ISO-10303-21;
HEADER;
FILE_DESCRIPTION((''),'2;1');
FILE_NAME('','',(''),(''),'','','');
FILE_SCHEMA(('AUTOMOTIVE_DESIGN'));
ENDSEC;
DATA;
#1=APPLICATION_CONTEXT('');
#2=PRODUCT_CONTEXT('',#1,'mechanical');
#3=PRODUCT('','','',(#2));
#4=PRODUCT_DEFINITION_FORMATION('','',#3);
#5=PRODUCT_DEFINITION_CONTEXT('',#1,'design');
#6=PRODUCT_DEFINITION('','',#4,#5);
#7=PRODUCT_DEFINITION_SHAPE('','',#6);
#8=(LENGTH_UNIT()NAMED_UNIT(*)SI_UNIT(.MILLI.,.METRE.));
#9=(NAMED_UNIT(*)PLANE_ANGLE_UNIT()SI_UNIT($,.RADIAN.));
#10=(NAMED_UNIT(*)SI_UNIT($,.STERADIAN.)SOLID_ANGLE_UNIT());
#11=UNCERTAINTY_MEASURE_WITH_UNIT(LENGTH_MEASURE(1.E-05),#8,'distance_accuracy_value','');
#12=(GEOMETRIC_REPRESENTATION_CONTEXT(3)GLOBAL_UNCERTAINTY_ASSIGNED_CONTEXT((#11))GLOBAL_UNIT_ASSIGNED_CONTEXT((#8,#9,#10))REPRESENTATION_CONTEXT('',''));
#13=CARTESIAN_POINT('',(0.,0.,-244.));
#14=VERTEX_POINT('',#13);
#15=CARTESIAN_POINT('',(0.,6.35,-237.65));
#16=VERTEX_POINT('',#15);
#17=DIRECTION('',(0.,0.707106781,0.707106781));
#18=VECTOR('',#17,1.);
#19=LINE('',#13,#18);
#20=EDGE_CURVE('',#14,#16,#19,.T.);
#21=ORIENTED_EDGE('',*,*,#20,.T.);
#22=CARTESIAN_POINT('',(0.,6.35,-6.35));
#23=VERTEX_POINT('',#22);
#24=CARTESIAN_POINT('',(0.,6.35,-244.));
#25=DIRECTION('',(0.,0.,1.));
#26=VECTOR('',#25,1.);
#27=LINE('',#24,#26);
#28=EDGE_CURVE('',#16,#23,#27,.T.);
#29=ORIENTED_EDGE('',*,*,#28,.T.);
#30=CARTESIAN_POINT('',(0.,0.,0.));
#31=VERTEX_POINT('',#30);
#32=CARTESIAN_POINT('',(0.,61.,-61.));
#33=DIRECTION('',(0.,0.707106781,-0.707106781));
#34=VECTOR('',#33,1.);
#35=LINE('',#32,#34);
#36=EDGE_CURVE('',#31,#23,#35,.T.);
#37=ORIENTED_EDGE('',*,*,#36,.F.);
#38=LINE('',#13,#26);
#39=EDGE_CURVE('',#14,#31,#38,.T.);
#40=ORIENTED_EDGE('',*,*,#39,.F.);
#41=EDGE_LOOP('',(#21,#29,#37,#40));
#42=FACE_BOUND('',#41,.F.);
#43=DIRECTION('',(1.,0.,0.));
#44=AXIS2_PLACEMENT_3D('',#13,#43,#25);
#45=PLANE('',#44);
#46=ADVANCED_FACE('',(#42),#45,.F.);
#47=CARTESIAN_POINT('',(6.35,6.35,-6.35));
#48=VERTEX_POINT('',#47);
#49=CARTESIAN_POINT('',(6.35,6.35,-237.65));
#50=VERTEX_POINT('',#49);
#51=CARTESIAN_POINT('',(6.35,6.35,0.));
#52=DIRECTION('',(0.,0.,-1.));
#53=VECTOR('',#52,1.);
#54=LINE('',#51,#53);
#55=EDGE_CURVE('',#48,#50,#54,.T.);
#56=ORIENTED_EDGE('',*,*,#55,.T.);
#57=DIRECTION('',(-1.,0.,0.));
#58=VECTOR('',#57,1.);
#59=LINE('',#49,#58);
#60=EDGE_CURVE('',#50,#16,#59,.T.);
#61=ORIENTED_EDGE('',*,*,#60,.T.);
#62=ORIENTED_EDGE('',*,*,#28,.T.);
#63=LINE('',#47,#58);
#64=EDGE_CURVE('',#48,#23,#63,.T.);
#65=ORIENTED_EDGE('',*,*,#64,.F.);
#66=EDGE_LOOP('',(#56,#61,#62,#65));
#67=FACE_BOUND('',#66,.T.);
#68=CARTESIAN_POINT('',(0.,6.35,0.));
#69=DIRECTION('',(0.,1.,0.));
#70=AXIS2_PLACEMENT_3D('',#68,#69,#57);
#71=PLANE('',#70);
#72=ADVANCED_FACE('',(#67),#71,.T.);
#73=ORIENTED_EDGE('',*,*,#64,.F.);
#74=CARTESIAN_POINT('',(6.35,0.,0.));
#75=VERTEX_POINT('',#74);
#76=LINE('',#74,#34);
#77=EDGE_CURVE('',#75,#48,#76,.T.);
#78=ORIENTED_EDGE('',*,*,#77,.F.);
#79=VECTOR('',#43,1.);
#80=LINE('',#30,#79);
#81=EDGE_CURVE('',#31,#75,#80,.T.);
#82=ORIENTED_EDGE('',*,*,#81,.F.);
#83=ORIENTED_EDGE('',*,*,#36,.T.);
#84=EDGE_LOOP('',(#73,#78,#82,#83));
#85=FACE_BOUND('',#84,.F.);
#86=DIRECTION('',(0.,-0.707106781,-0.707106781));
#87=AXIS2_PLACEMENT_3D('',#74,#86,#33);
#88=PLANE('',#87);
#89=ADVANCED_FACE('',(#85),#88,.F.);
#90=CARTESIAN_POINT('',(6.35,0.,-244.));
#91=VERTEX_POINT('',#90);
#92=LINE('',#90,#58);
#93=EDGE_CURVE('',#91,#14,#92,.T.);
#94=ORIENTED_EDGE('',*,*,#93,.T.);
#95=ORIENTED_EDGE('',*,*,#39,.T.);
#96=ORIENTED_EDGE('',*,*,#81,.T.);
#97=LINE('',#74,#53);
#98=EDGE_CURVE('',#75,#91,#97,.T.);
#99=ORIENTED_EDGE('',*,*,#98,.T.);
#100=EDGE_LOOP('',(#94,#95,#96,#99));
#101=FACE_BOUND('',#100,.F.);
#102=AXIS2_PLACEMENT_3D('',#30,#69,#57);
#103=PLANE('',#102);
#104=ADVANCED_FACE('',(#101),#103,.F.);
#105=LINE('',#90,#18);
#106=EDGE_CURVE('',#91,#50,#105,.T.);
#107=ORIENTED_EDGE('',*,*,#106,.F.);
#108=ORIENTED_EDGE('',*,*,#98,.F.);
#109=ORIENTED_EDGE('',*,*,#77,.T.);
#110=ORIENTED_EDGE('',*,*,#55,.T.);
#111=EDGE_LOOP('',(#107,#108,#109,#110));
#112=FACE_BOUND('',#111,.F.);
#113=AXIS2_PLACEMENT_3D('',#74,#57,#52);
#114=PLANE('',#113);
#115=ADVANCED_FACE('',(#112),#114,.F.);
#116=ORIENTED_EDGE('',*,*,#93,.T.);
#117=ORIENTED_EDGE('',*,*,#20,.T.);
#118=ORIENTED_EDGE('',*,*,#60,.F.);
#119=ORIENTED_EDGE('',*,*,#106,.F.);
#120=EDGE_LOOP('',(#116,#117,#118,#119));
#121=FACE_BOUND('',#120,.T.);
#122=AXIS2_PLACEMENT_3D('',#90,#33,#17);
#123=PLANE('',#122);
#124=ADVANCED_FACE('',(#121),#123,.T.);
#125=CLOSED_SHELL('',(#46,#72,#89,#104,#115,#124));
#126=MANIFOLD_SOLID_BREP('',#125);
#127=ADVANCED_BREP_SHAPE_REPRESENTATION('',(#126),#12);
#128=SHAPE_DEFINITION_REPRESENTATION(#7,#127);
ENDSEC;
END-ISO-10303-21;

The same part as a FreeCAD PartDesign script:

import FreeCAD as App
import Part
import Sketcher
from FreeCAD import Vector
Q = App.Units.Quantity

doc = App.newDocument("Part")
body = doc.addObject("PartDesign::Body", "Body")

# Sketch on XZ plane
sketch1 = body.newObject("Sketcher::SketchObject", "Sketch")
sketch1.AttachmentSupport = (doc.getObject("XZ_Plane"), [""])
sketch1.MapMode = "FlatFace"
sketch1.addGeometry([
    Part.LineSegment(Vector(0, -244, 0), Vector(0, 0, 0)),
    Part.LineSegment(Vector(0, 0, 0), Vector(6, 0, 0)),
    Part.LineSegment(Vector(6, 0, 0), Vector(6, -244, 0)),
    Part.LineSegment(Vector(6, -244, 0), Vector(0, -244, 0)),
], False)
sketch1.addConstraint([
    Sketcher.Constraint("Coincident", 0, 2, 1, 1),
    Sketcher.Constraint("Coincident", 1, 2, 2, 1),
    Sketcher.Constraint("Coincident", 2, 2, 3, 1),
    Sketcher.Constraint("Coincident", 3, 2, 0, 1),
    Sketcher.Constraint("Vertical", 0),
    Sketcher.Constraint("Horizontal", 1),
    Sketcher.Constraint("Vertical", 2),
    Sketcher.Constraint("Horizontal", 3),
    Sketcher.Constraint("Coincident", 0, 2, -1, 1),
    Sketcher.Constraint("DistanceX", 1, 1, 1, 2, Q("0.25 in")),
    Sketcher.Constraint("DistanceY", 0, 1, 0, 2, Q("9.6063 in")),
])
pad1 = body.newObject("PartDesign::Pad", "Pad")
pad1.Profile = sketch1
pad1.Length = Q("0.25 in")
pad1.Reversed = True

# Sketch on YZ plane
sketch2 = body.newObject("Sketcher::SketchObject", "Sketch001")
sketch2.AttachmentSupport = (doc.getObject("YZ_Plane"), [""])
sketch2.MapMode = "FlatFace"
sketch2.AttachmentOffset = App.Placement(Vector(0, 0, 0.25 * 25.4), App.Rotation())
sketch2.addGeometry([
    Part.LineSegment(Vector(6, 0, 0), Vector(0, 0, 0)),
    Part.LineSegment(Vector(0, 0, 0), Vector(6, -6, 0)),
    Part.LineSegment(Vector(6, -6, 0), Vector(6, 0, 0)),
], False)
sketch2.addConstraint([
    Sketcher.Constraint("Coincident", 0, 2, 1, 1),
    Sketcher.Constraint("Coincident", 1, 2, 2, 1),
    Sketcher.Constraint("Coincident", 2, 2, 0, 1),
    Sketcher.Constraint("Horizontal", 0),
    Sketcher.Constraint("Vertical", 2),
    Sketcher.Constraint("Coincident", 0, 2, -1, 1),
    Sketcher.Constraint("Equal", 0, 2),
    Sketcher.Constraint("DistanceX", 0, 2, 0, 1, Q("0.25 in")),
])
pocket1 = body.newObject("PartDesign::Pocket", "Pocket")
pocket1.Profile = sketch2
pocket1.Length = Q("0.3937008 in")

# Sketch on YZ plane
sketch3 = body.newObject("Sketcher::SketchObject", "Sketch002")
sketch3.AttachmentSupport = (doc.getObject("YZ_Plane"), [""])
sketch3.MapMode = "FlatFace"
sketch3.AttachmentOffset = App.Placement(Vector(0, 0, 0.25 * 25.4), App.Rotation())
sketch3.addGeometry([
    Part.LineSegment(Vector(6, -238, 0), Vector(0, -244, 0)),
    Part.LineSegment(Vector(0, -244, 0), Vector(6, -244, 0)),
    Part.LineSegment(Vector(6, -244, 0), Vector(6, -238, 0)),
], False)
sketch3.addConstraint([
    Sketcher.Constraint("Coincident", 0, 2, 1, 1),
    Sketcher.Constraint("Coincident", 1, 2, 2, 1),
    Sketcher.Constraint("Coincident", 2, 2, 0, 1),
    Sketcher.Constraint("Horizontal", 1),
    Sketcher.Constraint("Vertical", 2),
    Sketcher.Constraint("PointOnObject", 0, 2, -2),
    Sketcher.Constraint("Equal", 1, 2),
    Sketcher.Constraint("DistanceX", 1, 1, 1, 2, Q("0.25 in")),
    Sketcher.Constraint("DistanceY", 0, 2, -1, 1, Q("9.6063 in")),
])
pocket2 = body.newObject("PartDesign::Pocket", "Pocket001")
pocket2.Profile = sketch3
pocket2.Length = Q("0.3937008 in")

doc.recompute()
